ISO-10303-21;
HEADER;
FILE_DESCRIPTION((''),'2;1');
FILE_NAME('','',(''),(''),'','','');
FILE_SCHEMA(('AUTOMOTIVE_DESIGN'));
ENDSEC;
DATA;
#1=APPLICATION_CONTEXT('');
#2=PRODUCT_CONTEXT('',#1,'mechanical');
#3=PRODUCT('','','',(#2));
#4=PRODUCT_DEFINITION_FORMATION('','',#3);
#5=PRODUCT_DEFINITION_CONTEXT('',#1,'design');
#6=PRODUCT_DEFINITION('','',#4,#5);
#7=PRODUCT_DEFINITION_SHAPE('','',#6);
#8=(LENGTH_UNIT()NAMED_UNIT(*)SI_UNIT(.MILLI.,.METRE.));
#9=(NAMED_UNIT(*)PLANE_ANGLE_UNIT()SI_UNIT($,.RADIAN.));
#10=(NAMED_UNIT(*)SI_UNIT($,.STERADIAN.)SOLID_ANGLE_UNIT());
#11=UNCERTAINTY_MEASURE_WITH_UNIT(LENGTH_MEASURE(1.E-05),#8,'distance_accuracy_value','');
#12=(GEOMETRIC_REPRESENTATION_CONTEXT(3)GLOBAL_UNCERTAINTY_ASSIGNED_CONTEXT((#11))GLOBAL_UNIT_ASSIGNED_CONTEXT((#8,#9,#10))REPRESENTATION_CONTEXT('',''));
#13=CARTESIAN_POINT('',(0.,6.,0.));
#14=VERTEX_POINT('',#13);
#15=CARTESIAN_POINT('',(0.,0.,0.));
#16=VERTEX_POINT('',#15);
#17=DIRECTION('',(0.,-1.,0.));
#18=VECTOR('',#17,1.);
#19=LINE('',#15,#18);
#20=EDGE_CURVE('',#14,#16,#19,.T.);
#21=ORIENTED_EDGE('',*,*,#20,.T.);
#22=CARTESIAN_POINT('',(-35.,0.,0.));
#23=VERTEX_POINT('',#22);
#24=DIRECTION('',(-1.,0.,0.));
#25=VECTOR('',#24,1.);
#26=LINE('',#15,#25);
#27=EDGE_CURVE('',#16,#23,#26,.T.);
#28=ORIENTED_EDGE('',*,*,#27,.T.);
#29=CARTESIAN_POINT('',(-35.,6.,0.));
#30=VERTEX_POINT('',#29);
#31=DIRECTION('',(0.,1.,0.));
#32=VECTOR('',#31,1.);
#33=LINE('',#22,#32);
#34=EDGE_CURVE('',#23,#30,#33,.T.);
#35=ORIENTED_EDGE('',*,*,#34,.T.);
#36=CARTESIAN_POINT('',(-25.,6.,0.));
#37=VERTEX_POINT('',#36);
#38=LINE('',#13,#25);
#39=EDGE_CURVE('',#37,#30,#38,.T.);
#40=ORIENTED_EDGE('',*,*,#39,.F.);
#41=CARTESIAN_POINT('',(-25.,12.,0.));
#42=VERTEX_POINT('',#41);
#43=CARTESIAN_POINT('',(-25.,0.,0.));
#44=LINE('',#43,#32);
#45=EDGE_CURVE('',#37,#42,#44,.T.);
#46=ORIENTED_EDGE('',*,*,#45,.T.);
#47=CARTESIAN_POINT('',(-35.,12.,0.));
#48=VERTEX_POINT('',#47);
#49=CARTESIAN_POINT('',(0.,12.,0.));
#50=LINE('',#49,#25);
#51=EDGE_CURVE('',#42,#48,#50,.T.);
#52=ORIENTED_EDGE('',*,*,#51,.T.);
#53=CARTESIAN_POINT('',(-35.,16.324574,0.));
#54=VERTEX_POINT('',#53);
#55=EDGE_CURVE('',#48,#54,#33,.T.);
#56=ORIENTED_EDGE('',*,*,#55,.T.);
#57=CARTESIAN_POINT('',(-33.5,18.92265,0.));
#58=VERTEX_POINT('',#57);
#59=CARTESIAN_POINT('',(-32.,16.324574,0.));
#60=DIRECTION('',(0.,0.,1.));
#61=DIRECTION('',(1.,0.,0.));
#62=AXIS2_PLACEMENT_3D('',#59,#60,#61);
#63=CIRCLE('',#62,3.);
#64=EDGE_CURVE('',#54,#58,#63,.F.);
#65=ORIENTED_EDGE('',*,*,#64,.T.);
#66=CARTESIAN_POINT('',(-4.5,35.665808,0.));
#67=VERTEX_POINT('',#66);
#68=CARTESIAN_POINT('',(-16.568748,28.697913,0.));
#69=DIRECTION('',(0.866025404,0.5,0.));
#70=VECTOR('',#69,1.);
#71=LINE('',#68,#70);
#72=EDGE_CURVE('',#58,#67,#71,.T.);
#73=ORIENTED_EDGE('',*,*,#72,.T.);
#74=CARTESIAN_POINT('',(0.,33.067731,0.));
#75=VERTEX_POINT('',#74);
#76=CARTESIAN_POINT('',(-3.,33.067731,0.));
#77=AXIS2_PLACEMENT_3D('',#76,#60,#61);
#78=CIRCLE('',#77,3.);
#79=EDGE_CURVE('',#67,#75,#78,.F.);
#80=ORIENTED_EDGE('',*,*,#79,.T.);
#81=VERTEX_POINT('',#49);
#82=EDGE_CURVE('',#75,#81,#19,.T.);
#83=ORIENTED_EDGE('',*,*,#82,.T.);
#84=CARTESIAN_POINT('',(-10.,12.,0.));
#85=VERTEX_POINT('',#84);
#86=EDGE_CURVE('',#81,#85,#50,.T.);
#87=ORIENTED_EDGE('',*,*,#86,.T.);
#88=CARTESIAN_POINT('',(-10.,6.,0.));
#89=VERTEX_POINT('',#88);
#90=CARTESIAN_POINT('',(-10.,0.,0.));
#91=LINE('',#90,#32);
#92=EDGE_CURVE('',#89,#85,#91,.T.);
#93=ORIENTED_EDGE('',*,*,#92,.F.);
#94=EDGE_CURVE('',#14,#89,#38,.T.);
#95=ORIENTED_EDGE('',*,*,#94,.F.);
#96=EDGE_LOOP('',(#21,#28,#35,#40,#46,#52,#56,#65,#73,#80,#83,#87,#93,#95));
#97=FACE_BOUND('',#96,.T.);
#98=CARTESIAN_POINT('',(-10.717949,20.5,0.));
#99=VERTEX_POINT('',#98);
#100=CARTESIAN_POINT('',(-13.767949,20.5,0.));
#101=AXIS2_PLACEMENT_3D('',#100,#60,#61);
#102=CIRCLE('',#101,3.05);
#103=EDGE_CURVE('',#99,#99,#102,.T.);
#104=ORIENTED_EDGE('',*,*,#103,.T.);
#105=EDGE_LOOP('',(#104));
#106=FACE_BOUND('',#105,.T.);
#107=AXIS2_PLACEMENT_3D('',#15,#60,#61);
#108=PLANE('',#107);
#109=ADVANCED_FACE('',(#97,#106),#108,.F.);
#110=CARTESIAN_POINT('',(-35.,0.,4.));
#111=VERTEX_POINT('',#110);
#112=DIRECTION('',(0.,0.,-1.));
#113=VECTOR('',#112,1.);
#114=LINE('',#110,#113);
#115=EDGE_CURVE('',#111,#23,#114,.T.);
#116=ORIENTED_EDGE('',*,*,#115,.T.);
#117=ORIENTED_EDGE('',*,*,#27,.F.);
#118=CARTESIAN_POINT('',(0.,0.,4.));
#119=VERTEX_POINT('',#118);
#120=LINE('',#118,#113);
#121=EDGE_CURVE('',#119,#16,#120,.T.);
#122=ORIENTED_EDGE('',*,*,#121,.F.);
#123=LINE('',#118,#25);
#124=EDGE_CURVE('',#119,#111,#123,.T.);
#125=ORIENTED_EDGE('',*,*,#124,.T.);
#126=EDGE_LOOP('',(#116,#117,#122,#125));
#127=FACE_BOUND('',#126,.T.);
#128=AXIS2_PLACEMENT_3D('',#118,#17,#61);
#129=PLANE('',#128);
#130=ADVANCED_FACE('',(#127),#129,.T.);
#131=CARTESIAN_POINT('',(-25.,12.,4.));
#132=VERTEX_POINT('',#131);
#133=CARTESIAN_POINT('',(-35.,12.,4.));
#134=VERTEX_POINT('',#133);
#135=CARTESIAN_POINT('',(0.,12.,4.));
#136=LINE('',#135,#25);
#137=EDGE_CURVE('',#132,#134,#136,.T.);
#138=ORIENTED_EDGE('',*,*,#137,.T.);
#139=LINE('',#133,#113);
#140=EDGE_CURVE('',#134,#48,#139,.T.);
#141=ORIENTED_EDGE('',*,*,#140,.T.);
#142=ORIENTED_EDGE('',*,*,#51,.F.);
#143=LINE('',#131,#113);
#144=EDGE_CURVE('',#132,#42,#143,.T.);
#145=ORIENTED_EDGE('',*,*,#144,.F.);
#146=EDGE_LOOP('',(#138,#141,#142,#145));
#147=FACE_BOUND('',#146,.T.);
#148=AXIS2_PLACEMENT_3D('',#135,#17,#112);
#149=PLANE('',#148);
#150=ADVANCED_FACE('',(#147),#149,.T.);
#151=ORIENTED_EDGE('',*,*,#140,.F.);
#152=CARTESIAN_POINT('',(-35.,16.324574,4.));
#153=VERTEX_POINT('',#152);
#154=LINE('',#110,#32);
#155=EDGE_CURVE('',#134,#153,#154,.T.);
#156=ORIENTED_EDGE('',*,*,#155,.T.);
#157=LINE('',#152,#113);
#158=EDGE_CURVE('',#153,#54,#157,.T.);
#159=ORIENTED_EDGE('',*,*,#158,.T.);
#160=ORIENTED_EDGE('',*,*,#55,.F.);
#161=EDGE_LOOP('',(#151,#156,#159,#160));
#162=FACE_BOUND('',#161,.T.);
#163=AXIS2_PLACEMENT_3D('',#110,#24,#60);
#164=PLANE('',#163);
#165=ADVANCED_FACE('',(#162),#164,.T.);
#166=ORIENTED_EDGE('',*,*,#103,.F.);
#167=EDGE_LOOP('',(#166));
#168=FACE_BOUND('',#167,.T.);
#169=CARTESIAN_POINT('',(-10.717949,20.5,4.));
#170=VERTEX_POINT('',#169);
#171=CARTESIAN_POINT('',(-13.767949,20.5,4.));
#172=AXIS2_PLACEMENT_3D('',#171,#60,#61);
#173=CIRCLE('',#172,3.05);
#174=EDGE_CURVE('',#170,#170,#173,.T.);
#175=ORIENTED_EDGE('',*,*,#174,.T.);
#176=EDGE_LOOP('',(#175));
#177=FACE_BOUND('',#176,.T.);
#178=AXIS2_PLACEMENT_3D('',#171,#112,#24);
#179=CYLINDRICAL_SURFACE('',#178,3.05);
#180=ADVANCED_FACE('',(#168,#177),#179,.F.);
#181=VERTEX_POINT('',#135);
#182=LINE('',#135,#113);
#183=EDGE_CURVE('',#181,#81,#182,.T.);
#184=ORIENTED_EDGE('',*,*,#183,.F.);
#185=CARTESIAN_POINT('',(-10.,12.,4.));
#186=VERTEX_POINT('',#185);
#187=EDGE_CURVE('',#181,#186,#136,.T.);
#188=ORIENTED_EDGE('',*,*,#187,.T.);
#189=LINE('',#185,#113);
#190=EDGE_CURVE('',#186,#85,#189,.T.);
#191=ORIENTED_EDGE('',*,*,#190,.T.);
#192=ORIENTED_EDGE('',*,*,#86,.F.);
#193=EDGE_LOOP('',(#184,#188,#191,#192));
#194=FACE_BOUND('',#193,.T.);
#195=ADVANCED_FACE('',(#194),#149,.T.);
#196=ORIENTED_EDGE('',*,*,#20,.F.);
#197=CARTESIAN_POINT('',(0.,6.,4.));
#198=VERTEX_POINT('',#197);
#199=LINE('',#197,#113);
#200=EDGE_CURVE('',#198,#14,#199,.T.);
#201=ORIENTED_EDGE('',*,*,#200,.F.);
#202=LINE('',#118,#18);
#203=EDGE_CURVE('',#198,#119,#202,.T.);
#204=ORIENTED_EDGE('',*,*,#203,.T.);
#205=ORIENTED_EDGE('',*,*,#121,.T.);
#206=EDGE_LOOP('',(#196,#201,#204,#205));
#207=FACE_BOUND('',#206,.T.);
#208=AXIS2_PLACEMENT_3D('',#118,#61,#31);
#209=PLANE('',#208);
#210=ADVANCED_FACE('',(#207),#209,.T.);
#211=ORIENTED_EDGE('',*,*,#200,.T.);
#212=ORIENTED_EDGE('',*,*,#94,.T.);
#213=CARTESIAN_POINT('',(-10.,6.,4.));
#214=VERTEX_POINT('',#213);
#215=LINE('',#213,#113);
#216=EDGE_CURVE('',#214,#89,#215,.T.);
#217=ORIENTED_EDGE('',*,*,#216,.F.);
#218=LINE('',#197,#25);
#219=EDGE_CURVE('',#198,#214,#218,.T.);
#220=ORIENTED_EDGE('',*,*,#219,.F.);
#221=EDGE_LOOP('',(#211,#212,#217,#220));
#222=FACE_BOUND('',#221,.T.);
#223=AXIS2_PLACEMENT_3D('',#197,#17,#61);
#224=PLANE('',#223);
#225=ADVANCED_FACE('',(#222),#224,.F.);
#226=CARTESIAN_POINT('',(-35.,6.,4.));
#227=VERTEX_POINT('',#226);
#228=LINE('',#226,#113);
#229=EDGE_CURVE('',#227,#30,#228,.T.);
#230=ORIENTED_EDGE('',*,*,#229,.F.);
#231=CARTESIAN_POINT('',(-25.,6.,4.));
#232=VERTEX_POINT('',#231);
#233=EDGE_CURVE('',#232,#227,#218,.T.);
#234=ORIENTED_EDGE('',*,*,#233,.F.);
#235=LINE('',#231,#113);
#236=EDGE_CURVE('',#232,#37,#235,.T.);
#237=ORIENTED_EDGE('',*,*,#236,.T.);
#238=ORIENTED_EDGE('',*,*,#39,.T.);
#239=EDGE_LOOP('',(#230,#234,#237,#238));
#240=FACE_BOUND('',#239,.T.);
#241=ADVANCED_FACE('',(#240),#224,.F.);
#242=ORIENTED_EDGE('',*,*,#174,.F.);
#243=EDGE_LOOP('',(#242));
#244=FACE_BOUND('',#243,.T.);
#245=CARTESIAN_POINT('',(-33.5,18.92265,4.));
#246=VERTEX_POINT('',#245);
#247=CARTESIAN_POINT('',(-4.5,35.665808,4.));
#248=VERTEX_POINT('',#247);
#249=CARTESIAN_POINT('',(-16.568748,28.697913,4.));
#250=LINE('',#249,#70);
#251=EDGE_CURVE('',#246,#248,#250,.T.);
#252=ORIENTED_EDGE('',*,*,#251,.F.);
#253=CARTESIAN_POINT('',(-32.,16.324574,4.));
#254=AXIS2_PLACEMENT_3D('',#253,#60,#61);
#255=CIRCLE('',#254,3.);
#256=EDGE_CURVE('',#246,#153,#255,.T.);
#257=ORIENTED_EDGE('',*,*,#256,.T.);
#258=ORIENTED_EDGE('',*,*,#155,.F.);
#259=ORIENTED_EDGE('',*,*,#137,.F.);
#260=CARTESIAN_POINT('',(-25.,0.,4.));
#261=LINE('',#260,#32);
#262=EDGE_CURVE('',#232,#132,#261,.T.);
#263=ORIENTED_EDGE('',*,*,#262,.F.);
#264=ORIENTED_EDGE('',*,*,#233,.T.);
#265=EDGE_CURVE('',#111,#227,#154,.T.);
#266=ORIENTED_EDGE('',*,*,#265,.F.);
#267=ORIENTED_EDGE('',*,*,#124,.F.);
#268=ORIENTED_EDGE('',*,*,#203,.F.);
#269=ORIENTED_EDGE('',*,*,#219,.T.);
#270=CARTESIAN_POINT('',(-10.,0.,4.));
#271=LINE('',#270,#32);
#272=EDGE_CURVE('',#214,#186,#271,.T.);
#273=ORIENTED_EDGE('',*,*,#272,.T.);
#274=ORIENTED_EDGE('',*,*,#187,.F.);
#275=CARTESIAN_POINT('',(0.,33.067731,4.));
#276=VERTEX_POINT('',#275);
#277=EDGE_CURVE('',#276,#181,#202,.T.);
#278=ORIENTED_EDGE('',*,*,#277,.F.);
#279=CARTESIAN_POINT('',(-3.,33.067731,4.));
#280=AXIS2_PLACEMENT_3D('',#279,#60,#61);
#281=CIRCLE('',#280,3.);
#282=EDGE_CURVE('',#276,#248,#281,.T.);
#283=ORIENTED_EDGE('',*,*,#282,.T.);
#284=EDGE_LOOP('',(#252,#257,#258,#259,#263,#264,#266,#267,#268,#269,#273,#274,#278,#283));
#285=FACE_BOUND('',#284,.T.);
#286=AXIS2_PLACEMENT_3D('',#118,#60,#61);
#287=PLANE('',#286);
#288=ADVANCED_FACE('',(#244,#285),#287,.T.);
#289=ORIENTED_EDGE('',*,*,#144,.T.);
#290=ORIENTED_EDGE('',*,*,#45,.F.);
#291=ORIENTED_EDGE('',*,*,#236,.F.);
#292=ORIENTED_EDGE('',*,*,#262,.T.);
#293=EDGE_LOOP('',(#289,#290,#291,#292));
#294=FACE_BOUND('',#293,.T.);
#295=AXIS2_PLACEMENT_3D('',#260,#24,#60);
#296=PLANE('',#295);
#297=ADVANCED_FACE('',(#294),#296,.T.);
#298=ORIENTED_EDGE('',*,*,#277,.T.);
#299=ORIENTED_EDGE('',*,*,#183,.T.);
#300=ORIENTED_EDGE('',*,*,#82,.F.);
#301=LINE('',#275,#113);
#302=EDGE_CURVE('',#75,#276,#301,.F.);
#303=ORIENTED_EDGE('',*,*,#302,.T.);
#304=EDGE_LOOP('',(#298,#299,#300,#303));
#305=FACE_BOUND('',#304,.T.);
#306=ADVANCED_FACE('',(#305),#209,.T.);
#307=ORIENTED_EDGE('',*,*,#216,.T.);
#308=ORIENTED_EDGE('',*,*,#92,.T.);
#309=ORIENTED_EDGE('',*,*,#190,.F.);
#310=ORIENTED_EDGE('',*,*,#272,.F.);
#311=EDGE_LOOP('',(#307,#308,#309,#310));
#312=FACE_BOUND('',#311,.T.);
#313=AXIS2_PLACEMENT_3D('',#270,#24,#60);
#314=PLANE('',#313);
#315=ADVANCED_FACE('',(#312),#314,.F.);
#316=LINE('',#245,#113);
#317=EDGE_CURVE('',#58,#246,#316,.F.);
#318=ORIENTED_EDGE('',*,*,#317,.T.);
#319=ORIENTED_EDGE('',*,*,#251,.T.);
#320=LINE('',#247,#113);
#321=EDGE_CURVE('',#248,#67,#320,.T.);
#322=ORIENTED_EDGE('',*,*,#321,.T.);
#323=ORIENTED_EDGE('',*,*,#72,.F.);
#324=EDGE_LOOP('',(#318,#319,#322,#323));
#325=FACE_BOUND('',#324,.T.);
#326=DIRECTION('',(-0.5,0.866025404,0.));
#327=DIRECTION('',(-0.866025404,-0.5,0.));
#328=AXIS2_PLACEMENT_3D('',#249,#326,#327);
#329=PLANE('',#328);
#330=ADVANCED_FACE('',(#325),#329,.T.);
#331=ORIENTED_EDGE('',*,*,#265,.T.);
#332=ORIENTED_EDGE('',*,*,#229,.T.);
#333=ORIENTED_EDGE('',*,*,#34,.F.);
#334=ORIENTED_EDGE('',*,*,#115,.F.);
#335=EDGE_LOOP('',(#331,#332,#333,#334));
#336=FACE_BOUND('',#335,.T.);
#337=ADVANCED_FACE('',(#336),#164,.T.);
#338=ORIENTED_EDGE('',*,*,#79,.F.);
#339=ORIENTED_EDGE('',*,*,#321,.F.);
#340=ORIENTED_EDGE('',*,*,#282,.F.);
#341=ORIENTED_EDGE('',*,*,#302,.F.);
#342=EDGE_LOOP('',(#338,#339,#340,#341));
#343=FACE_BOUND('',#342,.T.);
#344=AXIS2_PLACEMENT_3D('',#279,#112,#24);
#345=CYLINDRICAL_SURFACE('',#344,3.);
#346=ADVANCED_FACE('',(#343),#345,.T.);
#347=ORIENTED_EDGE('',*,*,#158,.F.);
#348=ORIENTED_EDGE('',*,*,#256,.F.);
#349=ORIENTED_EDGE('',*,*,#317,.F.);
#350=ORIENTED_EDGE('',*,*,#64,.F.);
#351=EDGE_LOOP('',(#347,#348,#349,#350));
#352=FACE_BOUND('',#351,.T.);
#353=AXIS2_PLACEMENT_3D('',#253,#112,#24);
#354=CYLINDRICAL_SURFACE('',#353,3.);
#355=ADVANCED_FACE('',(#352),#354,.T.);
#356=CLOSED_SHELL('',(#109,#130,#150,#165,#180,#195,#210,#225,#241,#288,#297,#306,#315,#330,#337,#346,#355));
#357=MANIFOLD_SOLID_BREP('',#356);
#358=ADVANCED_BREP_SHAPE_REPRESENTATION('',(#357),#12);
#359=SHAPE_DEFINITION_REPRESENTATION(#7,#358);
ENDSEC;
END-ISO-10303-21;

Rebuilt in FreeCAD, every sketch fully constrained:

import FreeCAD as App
import Part
import Sketcher
from FreeCAD import Vector
Q = App.Units.Quantity


def edges_at(feature, points):
    """Names of the edges that pass closest to the given points."""
    edges = feature.Shape.Edges
    near = lambda p: min(range(len(edges)), key=lambda i: edges[i].distToShape(Part.Vertex(*p))[0])
    return sorted({f"Edge{near(p) + 1}" for p in points})

doc = App.newDocument("Part")
body = doc.addObject("PartDesign::Body", "Body")

# Sketch on XY plane
sketch1 = body.newObject("Sketcher::SketchObject", "Sketch")
sketch1.AttachmentSupport = (doc.getObject("XY_Plane"), [""])
sketch1.MapMode = "FlatFace"
sketch1.addGeometry(Part.LineSegment(Vector(0, 38.3, 0), Vector(-35, 18.1, 0)), False)
sketch1.addGeometry(Part.LineSegment(Vector(-35, 18.1, 0), Vector(-35, 12, 0)), False)
sketch1.addGeometry(Part.LineSegment(Vector(-35, 12, 0), Vector(-25, 12, 0)), False)
sketch1.addGeometry(Part.LineSegment(Vector(-25, 12, 0), Vector(-25, 6, 0)), False)
sketch1.addGeometry(Part.LineSegment(Vector(-25, 6, 0), Vector(-35, 6, 0)), False)
sketch1.addGeometry(Part.LineSegment(Vector(-35, 6, 0), Vector(-35, 0, 0)), False)
sketch1.addGeometry(Part.LineSegment(Vector(-35, 0, 0), Vector(0, 0, 0)), False)
sketch1.addGeometry(Part.LineSegment(Vector(0, 0, 0), Vector(0, 6, 0)), False)
sketch1.addGeometry(Part.LineSegment(Vector(0, 6, 0), Vector(-10, 6, 0)), False)
sketch1.addGeometry(Part.LineSegment(Vector(-10, 6, 0), Vector(-10, 12, 0)), False)
sketch1.addGeometry(Part.LineSegment(Vector(-10, 12, 0), Vector(0, 12, 0)), False)
sketch1.addGeometry(Part.LineSegment(Vector(0, 12, 0), Vector(0, 38.3, 0)), False)
sketch1.addGeometry(Part.Circle(Vector(-13.8, 20.5, 0), Vector(0, 0, 1), 3), False)
sketch1.addConstraint(Sketcher.Constraint("Coincident", 0, 2, 1, 1))
sketch1.addConstraint(Sketcher.Constraint("Coincident", 1, 2, 2, 1))
sketch1.addConstraint(Sketcher.Constraint("Coincident", 2, 2, 3, 1))
sketch1.addConstraint(Sketcher.Constraint("Coincident", 3, 2, 4, 1))
sketch1.addConstraint(Sketcher.Constraint("Coincident", 4, 2, 5, 1))
sketch1.addConstraint(Sketcher.Constraint("Coincident", 5, 2, 6, 1))
sketch1.addConstraint(Sketcher.Constraint("Coincident", 6, 2, 7, 1))
sketch1.addConstraint(Sketcher.Constraint("Coincident", 7, 2, 8, 1))
sketch1.addConstraint(Sketcher.Constraint("Coincident", 8, 2, 9, 1))
sketch1.addConstraint(Sketcher.Constraint("Coincident", 9, 2, 10, 1))
sketch1.addConstraint(Sketcher.Constraint("Coincident", 10, 2, 11, 1))
sketch1.addConstraint(Sketcher.Constraint("Coincident", 11, 2, 0, 1))
sketch1.addConstraint(Sketcher.Constraint("Vertical", 1))
sketch1.addConstraint(Sketcher.Constraint("Horizontal", 2))
sketch1.addConstraint(Sketcher.Constraint("Vertical", 3))
sketch1.addConstraint(Sketcher.Constraint("Horizontal", 4))
sketch1.addConstraint(Sketcher.Constraint("Vertical", 5))
sketch1.addConstraint(Sketcher.Constraint("Horizontal", 6))
sketch1.addConstraint(Sketcher.Constraint("Vertical", 7))
sketch1.addConstraint(Sketcher.Constraint("Horizontal", 8))
sketch1.addConstraint(Sketcher.Constraint("Vertical", 9))
sketch1.addConstraint(Sketcher.Constraint("Horizontal", 10))
sketch1.addConstraint(Sketcher.Constraint("Vertical", 11))
sketch1.addConstraint(Sketcher.Constraint("Coincident", 6, 2, -1, 1))
sketch1.addConstraint(Sketcher.Constraint("PointOnObject", 10, 2, -2))
sketch1.addConstraint(Sketcher.Constraint("Horizontal", 4, 2, 7, 2))
sketch1.addConstraint(Sketcher.Constraint("Horizontal", 2, 2, 9, 2))
sketch1.addConstraint(Sketcher.Constraint("Vertical", 1, 2, 4, 2))
sketch1.addConstraint(Sketcher.Constraint("Equal", 4, 8))
sketch1.addConstraint(Sketcher.Constraint("Equal", 3, 5))
sketch1.addConstraint(Sketcher.Constraint("Diameter", 12, 6.1))
sketch1.addConstraint(Sketcher.Constraint("DistanceX", 2, 1, 2, 2, 10.0))
sketch1.addConstraint(Sketcher.Constraint("DistanceX", 6, 1, 6, 2, 35.0))
sketch1.addConstraint(Sketcher.Constraint("DistanceY", 3, 2, 3, 1, 6.0))
sketch1.addConstraint(Sketcher.Constraint("Angle", 0, Q("-150 deg")))
sketch1.addConstraint(Sketcher.Constraint("DistanceY", -1, 1, 12, 3, 20.5))
sketch1.addConstraint(Sketcher.Constraint("DistanceY", 1, 2, 1, 1, 6.056624))
sketch1.addConstraint(Sketcher.Constraint("DistanceX", 12, 3, -1, 1, 13.767949))
pad1 = body.newObject("PartDesign::Pad", "Pad")
pad1.Profile = sketch1
pad1.Length = 4
doc.recompute()

fillet = body.newObject("PartDesign::Fillet", "Fillet")
fillet.Base = (pad1, edges_at(pad1, [(-35, 18.057, 2), (0, 38.264, 2)]))
fillet.Radius = 3

doc.recompute()
